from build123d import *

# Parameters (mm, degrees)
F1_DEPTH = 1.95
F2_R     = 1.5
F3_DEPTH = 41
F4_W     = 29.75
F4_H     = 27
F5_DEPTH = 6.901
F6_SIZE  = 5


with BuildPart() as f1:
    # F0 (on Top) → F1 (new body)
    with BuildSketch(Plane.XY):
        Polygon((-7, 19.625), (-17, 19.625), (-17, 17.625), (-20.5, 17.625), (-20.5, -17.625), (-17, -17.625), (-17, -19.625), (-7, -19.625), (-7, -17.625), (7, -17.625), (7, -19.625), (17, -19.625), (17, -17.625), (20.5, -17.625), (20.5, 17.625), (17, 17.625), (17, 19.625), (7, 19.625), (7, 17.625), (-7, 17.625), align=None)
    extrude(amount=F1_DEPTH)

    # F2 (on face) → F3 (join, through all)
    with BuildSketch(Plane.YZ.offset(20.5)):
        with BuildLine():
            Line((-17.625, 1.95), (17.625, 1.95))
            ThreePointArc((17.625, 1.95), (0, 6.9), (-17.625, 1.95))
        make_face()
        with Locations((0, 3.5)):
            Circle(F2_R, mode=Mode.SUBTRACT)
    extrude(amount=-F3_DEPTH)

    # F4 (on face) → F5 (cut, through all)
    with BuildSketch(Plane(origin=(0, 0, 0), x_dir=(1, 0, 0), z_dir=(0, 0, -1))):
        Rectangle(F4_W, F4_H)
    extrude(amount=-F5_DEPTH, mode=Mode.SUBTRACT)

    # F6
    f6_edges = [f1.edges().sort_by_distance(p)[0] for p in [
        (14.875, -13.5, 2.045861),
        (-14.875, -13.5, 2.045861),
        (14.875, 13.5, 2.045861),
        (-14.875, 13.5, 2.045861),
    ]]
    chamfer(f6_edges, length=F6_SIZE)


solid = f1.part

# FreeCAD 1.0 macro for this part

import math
import FreeCAD as App
import Part
import Sketcher

V = App.Vector
Q = App.Units.Quantity


def edges_at(feature, points):
    """Names of the edges that pass closest to the given points."""
    edges = feature.Shape.Edges
    near = lambda p: min(range(len(edges)), key=lambda i: edges[i].distToShape(Part.Vertex(*p))[0])
    return sorted({f"Edge{near(p) + 1}" for p in points})

doc = App.newDocument("Part")
params = doc.addObject("Spreadsheet::Sheet", "Params")
for row, (alias, value) in enumerate([
    ("sketch1_width", "10 mm"),
    ("sketch1_width2", "14 mm"),
    ("sketch1_height", "2 mm"),
    ("sketch1_width3", "3.5 mm"),
    ("sketch1_height2", "35.25 mm"),
    ("pad1_length", "1.95 mm"),
    ("sketch2_diameter", "3 mm"),
    ("sketch2_width", "35.25 mm"),
    ("pad2_length", "41 mm"),
    ("sketch3_height", "27 mm"),
    ("sketch3_width", "29.75 mm"),
    ("chamfer_size", "5 mm"),
], start=1):
    params.set(f"A{row}", alias)
    params.set(f"B{row}", "=" + value)
    params.setAlias(f"B{row}", alias)

body = doc.addObject("PartDesign::Body", "Body")

# Sketch on XY plane
sketch1 = doc.addObject("Sketcher::SketchObject", "Sketch")
body.addObject(sketch1)
sketch1.AttachmentSupport = (doc.XY_Plane, [""])
sketch1.MapMode = "FlatFace"
sketch1.addGeometry([
    Part.LineSegment(V(-7, 19.6, 0), V(-17, 19.6, 0)),  # 0
    Part.LineSegment(V(-17, 19.6, 0), V(-17, 17.6, 0)),  # 1
    Part.LineSegment(V(-17, 17.6, 0), V(-20.5, 17.6, 0)),  # 2
    Part.LineSegment(V(-20.5, 17.6, 0), V(-20.5, -17.6, 0)),  # 3
    Part.LineSegment(V(-20.5, -17.6, 0), V(-17, -17.6, 0)),  # 4
    Part.LineSegment(V(-17, -17.6, 0), V(-17, -19.6, 0)),  # 5
    Part.LineSegment(V(-17, -19.6, 0), V(-7, -19.6, 0)),  # 6
    Part.LineSegment(V(-7, -19.6, 0), V(-7, -17.6, 0)),  # 7
    Part.LineSegment(V(-7, -17.6, 0), V(7, -17.6, 0)),  # 8
    Part.LineSegment(V(7, -17.6, 0), V(7, -19.6, 0)),  # 9
    Part.LineSegment(V(7, -19.6, 0), V(17, -19.6, 0)),  # 10
    Part.LineSegment(V(17, -19.6, 0), V(17, -17.6, 0)),  # 11
    Part.LineSegment(V(17, -17.6, 0), V(20.5, -17.6, 0)),  # 12
    Part.LineSegment(V(20.5, -17.6, 0), V(20.5, 17.6, 0)),  # 13
    Part.LineSegment(V(20.5, 17.6, 0), V(17, 17.6, 0)),  # 14
    Part.LineSegment(V(17, 17.6, 0), V(17, 19.6, 0)),  # 15
    Part.LineSegment(V(17, 19.6, 0), V(7, 19.6, 0)),  # 16
    Part.LineSegment(V(7, 19.6, 0), V(7, 17.6, 0)),  # 17
    Part.LineSegment(V(7, 17.6, 0), V(-7, 17.6, 0)),  # 18
    Part.LineSegment(V(-7, 17.6, 0), V(-7, 19.6, 0)),  # 19
], False)
sketch1.addConstraint([
    Sketcher.Constraint("Coincident", 0, 2, 1, 1),
    Sketcher.Constraint("Coincident", 1, 2, 2, 1),
    Sketcher.Constraint("Coincident", 2, 2, 3, 1),
    Sketcher.Constraint("Coincident", 3, 2, 4, 1),
    Sketcher.Constraint("Coincident", 4, 2, 5, 1),
    Sketcher.Constraint("Coincident", 5, 2, 6, 1),
    Sketcher.Constraint("Coincident", 6, 2, 7, 1),
    Sketcher.Constraint("Coincident", 7, 2, 8, 1),
    Sketcher.Constraint("Coincident", 8, 2, 9, 1),
    Sketcher.Constraint("Coincident", 9, 2, 10, 1),
    Sketcher.Constraint("Coincident", 10, 2, 11, 1),
    Sketcher.Constraint("Coincident", 11, 2, 12, 1),
    Sketcher.Constraint("Coincident", 12, 2, 13, 1),
    Sketcher.Constraint("Coincident", 13, 2, 14, 1),
    Sketcher.Constraint("Coincident", 14, 2, 15, 1),
    Sketcher.Constraint("Coincident", 15, 2, 16, 1),
    Sketcher.Constraint("Coincident", 16, 2, 17, 1),
    Sketcher.Constraint("Coincident", 17, 2, 18, 1),
    Sketcher.Constraint("Coincident", 18, 2, 19, 1),
    Sketcher.Constraint("Coincident", 19, 2, 0, 1),
    Sketcher.Constraint("Horizontal", 0),
    Sketcher.Constraint("Vertical", 1),
    Sketcher.Constraint("Horizontal", 2),
    Sketcher.Constraint("Vertical", 3),
    Sketcher.Constraint("Horizontal", 4),
    Sketcher.Constraint("Vertical", 5),
    Sketcher.Constraint("Horizontal", 6),
    Sketcher.Constraint("Vertical", 7),
    Sketcher.Constraint("Horizontal", 8),
    Sketcher.Constraint("Vertical", 9),
    Sketcher.Constraint("Horizontal", 10),
    Sketcher.Constraint("Vertical", 11),
    Sketcher.Constraint("Horizontal", 12),
    Sketcher.Constraint("Vertical", 13),
    Sketcher.Constraint("Horizontal", 14),
    Sketcher.Constraint("Vertical", 15),
    Sketcher.Constraint("Horizontal", 16),
    Sketcher.Constraint("Vertical", 17),
    Sketcher.Constraint("Horizontal", 18),
    Sketcher.Constraint("Vertical", 19),
    Sketcher.Constraint("Symmetric", 0, 2, 10, 2, -1, 1),
    Sketcher.Constraint("Symmetric", 2, 2, 12, 2, -1, 1),
    Sketcher.Constraint("Symmetric", 4, 2, 14, 2, -1, 1),
    Sketcher.Constraint("Symmetric", 6, 2, 16, 2, -1, 1),
    Sketcher.Constraint("Symmetric", 8, 2, 18, 2, -1, 1),
    Sketcher.Constraint("Symmetric", 6, 2, 9, 2, -2),
    Sketcher.Constraint("Symmetric", 4, 2, 11, 2, -2),
    Sketcher.Constraint("Horizontal", 4, 2, 7, 2),
    Sketcher.Constraint("DistanceX", 0, 2, 0, 1, Q("10 mm")),
    Sketcher.Constraint("DistanceX", 8, 1, 8, 2, Q("14 mm")),
    Sketcher.Constraint("DistanceY", 1, 2, 1, 1, Q("2 mm")),
    Sketcher.Constraint("DistanceX", 2, 2, 2, 1, Q("3.5 mm")),
    Sketcher.Constraint("DistanceY", 3, 2, 3, 1, Q("35.25 mm")),
])
sketch1.setExpression("Constraints[48]", "Params.sketch1_width")
sketch1.setExpression("Constraints[49]", "Params.sketch1_width2")
sketch1.setExpression("Constraints[50]", "Params.sketch1_height")
sketch1.setExpression("Constraints[51]", "Params.sketch1_width3")
sketch1.setExpression("Constraints[52]", "Params.sketch1_height2")
pad1 = doc.addObject("PartDesign::Pad", "Pad")
body.addObject(pad1)
pad1.Profile = sketch1
pad1.setExpression("Length", "Params.pad1_length")

# Sketch on YZ plane
sketch2 = doc.addObject("Sketcher::SketchObject", "Sketch001")
body.addObject(sketch2)
sketch2.AttachmentSupport = (doc.YZ_Plane, [""])
sketch2.MapMode = "FlatFace"
sketch2.AttachmentOffset = App.Placement(V(0, 0, 20.5), App.Rotation())
sketch2.addGeometry([
    Part.LineSegment(V(-17.6, 1.9, 0), V(17.6, 1.9, 0)),
    Part.ArcOfCircle(Part.Circle(V(0, -27, 0), V(0, 0, 1), 33.9), math.radians(59), math.radians(121)),
    Part.Circle(V(0, 3.5, 0), V(0, 0, 1), 1.5),
], False)
sketch2.addConstraint([
    Sketcher.Constraint("Coincident", 0, 1, 1, 2),
    Sketcher.Constraint("Coincident", 1, 1, 0, 2),
    Sketcher.Constraint("Horizontal", 0),
    Sketcher.Constraint("PointOnObject", 1, 3, -2),
    Sketcher.Constraint("PointOnObject", 2, 3, -2),
    Sketcher.Constraint("Diameter", 2, Q("3 mm")),
    Sketcher.Constraint("DistanceX", 0, 1, 0, 2, Q("35.25 mm")),
    Sketcher.Constraint("DistanceY", -1, 1, 2, 3, Q("3.5 mm")),
    Sketcher.Constraint("DistanceY", -1, 1, 0, 1, Q("1.95 mm")),
    Sketcher.Constraint("Radius", 1, Q("33.852841 mm")),
])
sketch2.setExpression("Constraints[5]", "Params.sketch2_diameter")
sketch2.setExpression("Constraints[6]", "Params.sketch2_width")
pad2 = doc.addObject("PartDesign::Pad", "Pad001")
body.addObject(pad2)
pad2.Profile = sketch2
pad2.setExpression("Length", "Params.pad2_length")
pad2.Reversed = True

# Sketch on XY plane
sketch3 = doc.addObject("Sketcher::SketchObject", "Sketch002")
body.addObject(sketch3)
sketch3.AttachmentSupport = (doc.XY_Plane, [""])
sketch3.MapMode = "FlatFace"
sketch3.addGeometry([
    Part.LineSegment(V(-15, -14, 0), V(-15, 14, 0)),
    Part.LineSegment(V(-15, 14, 0), V(15, 14, 0)),
    Part.LineSegment(V(15, 14, 0), V(15, -14, 0)),
    Part.LineSegment(V(15, -14, 0), V(-15, -14, 0)),
], False)
sketch3.addConstraint([
    Sketcher.Constraint("Coincident", 0, 2, 1, 1),
    Sketcher.Constraint("Coincident", 1, 2, 2, 1),
    Sketcher.Constraint("Coincident", 2, 2, 3, 1),
    Sketcher.Constraint("Coincident", 3, 2, 0, 1),
    Sketcher.Constraint("Vertical", 0),
    Sketcher.Constraint("Horizontal", 1),
    Sketcher.Constraint("Vertical", 2),
    Sketcher.Constraint("Horizontal", 3),
    Sketcher.Constraint("Symmetric", 0, 2, 2, 2, -1, 1),
    Sketcher.Constraint("DistanceY", 0, 1, 0, 2, Q("27 mm")),
    Sketcher.Constraint("DistanceX", 1, 1, 1, 2, Q("29.75 mm")),
])
sketch3.setExpression("Constraints[9]", "Params.sketch3_height")
sketch3.setExpression("Constraints[10]", "Params.sketch3_width")
pocket1 = doc.addObject("PartDesign::Pocket", "Pocket")
body.addObject(pocket1)
pocket1.Profile = sketch3
pocket1.Type = "ThroughAll"
pocket1.Reversed = True
doc.recompute()

chamfer = doc.addObject("PartDesign::Chamfer", "Chamfer")
body.addObject(chamfer)
chamfer.Base = (pocket1, edges_at(pocket1, [
    (14.875, -13.5, 2.046),
    (-14.875, -13.5, 2.046),
    (14.875, 13.5, 2.046),
    (-14.875, 13.5, 2.046),
]))
chamfer.setExpression("Size", "Params.chamfer_size")

doc.recompute()
